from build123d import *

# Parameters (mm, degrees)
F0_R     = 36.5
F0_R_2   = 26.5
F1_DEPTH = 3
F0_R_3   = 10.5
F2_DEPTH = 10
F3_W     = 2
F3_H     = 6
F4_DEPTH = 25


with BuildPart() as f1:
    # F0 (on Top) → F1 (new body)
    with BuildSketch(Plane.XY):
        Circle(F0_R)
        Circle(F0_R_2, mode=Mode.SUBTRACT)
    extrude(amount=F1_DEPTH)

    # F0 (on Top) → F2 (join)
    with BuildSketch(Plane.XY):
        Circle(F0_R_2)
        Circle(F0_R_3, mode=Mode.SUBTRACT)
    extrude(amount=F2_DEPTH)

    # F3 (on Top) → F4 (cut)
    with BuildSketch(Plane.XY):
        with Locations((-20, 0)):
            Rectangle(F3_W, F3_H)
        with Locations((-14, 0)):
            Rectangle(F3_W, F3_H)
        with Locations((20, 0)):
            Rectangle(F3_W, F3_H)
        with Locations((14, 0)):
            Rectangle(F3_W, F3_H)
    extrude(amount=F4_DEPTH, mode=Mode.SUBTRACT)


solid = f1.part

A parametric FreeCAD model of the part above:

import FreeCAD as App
import Part
import Sketcher

V = App.Vector


def add_polygon(sketch, points):
    """Adds a closed chain of lines whose ends are joined by coincident constraints."""
    first, n = sketch.GeometryCount, len(points)
    for a, b in zip(points, points[1:] + points[:1]):
        sketch.addGeometry(Part.LineSegment(App.Vector(*a, 0), App.Vector(*b, 0)), False)
    for i in range(n):
        sketch.addConstraint(Sketcher.Constraint("Coincident", first + i, 2, first + (i + 1) % n, 1))

doc = App.newDocument("Part")
params = doc.addObject("Spreadsheet::Sheet", "Params")
for row, (alias, value) in enumerate([
    ("sketch1_diameter", "73 mm"),
    ("sketch1_diameter2", "53 mm"),
    ("pad1_length", "3 mm"),
    ("sketch2_diameter", "53 mm"),
    ("sketch2_diameter2", "21 mm"),
    ("pad2_length", "10 mm"),
    ("sketch3_width", "2 mm"),
    ("sketch3_height", "6 mm"),
    ("pocket1_length", "25 mm"),
], start=1):
    params.set(f"A{row}", alias)
    params.set(f"B{row}", "=" + value)
    params.setAlias(f"B{row}", alias)

body = doc.addObject("PartDesign::Body", "Body")

# Sketch on XY plane
sketch1 = body.newObject("Sketcher::SketchObject", "Sketch")
sketch1.AttachmentSupport = (doc.getObject("XY_Plane"), [""])
sketch1.MapMode = "FlatFace"
sketch1.addGeometry(Part.Circle(V(0, 0, 0), V(0, 0, 1), 36), False)
sketch1.addGeometry(Part.Circle(V(0, 0, 0), V(0, 0, 1), 26), False)
sketch1.addConstraint(Sketcher.Constraint("Coincident", 0, 3, -1, 1))
sketch1.addConstraint(Sketcher.Constraint("Coincident", 1, 3, -1, 1))
sketch1.addConstraint(Sketcher.Constraint("Diameter", 0, 73.0))
sketch1.addConstraint(Sketcher.Constraint("Diameter", 1, 53.0))
sketch1.setExpression("Constraints[2]", "Params.sketch1_diameter")
sketch1.setExpression("Constraints[3]", "Params.sketch1_diameter2")
pad1 = body.newObject("PartDesign::Pad", "Pad")
pad1.Profile = sketch1
pad1.setExpression("Length", "Params.pad1_length")

# Sketch on XY plane
sketch2 = body.newObject("Sketcher::SketchObject", "Sketch001")
sketch2.AttachmentSupport = (doc.getObject("XY_Plane"), [""])
sketch2.MapMode = "FlatFace"
sketch2.addGeometry(Part.Circle(V(0, 0, 0), V(0, 0, 1), 26), False)
sketch2.addGeometry(Part.Circle(V(0, 0, 0), V(0, 0, 1), 10), False)
sketch2.addConstraint(Sketcher.Constraint("Coincident", 0, 3, -1, 1))
sketch2.addConstraint(Sketcher.Constraint("Coincident", 1, 3, -1, 1))
sketch2.addConstraint(Sketcher.Constraint("Diameter", 0, 53.0))
sketch2.addConstraint(Sketcher.Constraint("Diameter", 1, 21.0))
sketch2.setExpression("Constraints[2]", "Params.sketch2_diameter")
sketch2.setExpression("Constraints[3]", "Params.sketch2_diameter2")
pad2 = body.newObject("PartDesign::Pad", "Pad001")
pad2.Profile = sketch2
pad2.setExpression("Length", "Params.pad2_length")

# Sketch on XY plane
sketch3 = body.newObject("Sketcher::SketchObject", "Sketch002")
sketch3.AttachmentSupport = (doc.getObject("XY_Plane"), [""])
sketch3.MapMode = "FlatFace"
add_polygon(sketch3, [(-21, 3), (-21, -3), (-19, -3), (-19, 3)])  # lines 0-3
add_polygon(sketch3, [(-15, 3), (-15, -3), (-13, -3), (-13, 3)])  # lines 4-7
add_polygon(sketch3, [(19, 3), (19, -3), (21, -3), (21, 3)])  # lines 8-11
add_polygon(sketch3, [(13, 3), (13, -3), (15, -3), (15, 3)])  # lines 12-15
sketch3.addConstraint(Sketcher.Constraint("Vertical", 0))
sketch3.addConstraint(Sketcher.Constraint("Horizontal", 1))
sketch3.addConstraint(Sketcher.Constraint("Vertical", 2))
sketch3.addConstraint(Sketcher.Constraint("Horizontal", 3))
sketch3.addConstraint(Sketcher.Constraint("Vertical", 4))
sketch3.addConstraint(Sketcher.Constraint("Horizontal", 5))
sketch3.addConstraint(Sketcher.Constraint("Vertical", 6))
sketch3.addConstraint(Sketcher.Constraint("Horizontal", 7))
sketch3.addConstraint(Sketcher.Constraint("Vertical", 8))
sketch3.addConstraint(Sketcher.Constraint("Horizontal", 9))
sketch3.addConstraint(Sketcher.Constraint("Vertical", 10))
sketch3.addConstraint(Sketcher.Constraint("Horizontal", 11))
sketch3.addConstraint(Sketcher.Constraint("Vertical", 12))
sketch3.addConstraint(Sketcher.Constraint("Horizontal", 13))
sketch3.addConstraint(Sketcher.Constraint("Vertical", 14))
sketch3.addConstraint(Sketcher.Constraint("Horizontal", 15))
sketch3.addConstraint(Sketcher.Constraint("Symmetric", 2, 2, 8, 2, -1, 1))
sketch3.addConstraint(Sketcher.Constraint("Symmetric", 0, 2, 10, 2, -1, 1))
sketch3.addConstraint(Sketcher.Constraint("Symmetric", 6, 2, 12, 2, -1, 1))
sketch3.addConstraint(Sketcher.Constraint("Symmetric", 4, 2, 14, 2, -1, 1))
sketch3.addConstraint(Sketcher.Constraint("Horizontal", 1, 2, 4, 2))
sketch3.addConstraint(Sketcher.Constraint("Horizontal", 3, 2, 6, 2))
sketch3.addConstraint(Sketcher.Constraint("Horizontal", 5, 2, 8, 2))
sketch3.addConstraint(Sketcher.Constraint("Equal", 3, 5))
sketch3.addConstraint(Sketcher.Constraint("DistanceX", 1, 1, 1, 2, 2.0))
sketch3.addConstraint(Sketcher.Constraint("DistanceY", 0, 2, 0, 1, 6.0))
sketch3.addConstraint(Sketcher.Constraint("DistanceX", 0, 2, -1, 1, 21.0))
sketch3.addConstraint(Sketcher.Constraint("DistanceX", 4, 2, -1, 1, 15.0))
sketch3.setExpression("Constraints[40]", "Params.sketch3_width")
sketch3.setExpression("Constraints[41]", "Params.sketch3_height")
pocket1 = body.newObject("PartDesign::Pocket", "Pocket")
pocket1.Profile = sketch3
pocket1.setExpression("Length", "Params.pocket1_length")
pocket1.Reversed = True

doc.recompute()
